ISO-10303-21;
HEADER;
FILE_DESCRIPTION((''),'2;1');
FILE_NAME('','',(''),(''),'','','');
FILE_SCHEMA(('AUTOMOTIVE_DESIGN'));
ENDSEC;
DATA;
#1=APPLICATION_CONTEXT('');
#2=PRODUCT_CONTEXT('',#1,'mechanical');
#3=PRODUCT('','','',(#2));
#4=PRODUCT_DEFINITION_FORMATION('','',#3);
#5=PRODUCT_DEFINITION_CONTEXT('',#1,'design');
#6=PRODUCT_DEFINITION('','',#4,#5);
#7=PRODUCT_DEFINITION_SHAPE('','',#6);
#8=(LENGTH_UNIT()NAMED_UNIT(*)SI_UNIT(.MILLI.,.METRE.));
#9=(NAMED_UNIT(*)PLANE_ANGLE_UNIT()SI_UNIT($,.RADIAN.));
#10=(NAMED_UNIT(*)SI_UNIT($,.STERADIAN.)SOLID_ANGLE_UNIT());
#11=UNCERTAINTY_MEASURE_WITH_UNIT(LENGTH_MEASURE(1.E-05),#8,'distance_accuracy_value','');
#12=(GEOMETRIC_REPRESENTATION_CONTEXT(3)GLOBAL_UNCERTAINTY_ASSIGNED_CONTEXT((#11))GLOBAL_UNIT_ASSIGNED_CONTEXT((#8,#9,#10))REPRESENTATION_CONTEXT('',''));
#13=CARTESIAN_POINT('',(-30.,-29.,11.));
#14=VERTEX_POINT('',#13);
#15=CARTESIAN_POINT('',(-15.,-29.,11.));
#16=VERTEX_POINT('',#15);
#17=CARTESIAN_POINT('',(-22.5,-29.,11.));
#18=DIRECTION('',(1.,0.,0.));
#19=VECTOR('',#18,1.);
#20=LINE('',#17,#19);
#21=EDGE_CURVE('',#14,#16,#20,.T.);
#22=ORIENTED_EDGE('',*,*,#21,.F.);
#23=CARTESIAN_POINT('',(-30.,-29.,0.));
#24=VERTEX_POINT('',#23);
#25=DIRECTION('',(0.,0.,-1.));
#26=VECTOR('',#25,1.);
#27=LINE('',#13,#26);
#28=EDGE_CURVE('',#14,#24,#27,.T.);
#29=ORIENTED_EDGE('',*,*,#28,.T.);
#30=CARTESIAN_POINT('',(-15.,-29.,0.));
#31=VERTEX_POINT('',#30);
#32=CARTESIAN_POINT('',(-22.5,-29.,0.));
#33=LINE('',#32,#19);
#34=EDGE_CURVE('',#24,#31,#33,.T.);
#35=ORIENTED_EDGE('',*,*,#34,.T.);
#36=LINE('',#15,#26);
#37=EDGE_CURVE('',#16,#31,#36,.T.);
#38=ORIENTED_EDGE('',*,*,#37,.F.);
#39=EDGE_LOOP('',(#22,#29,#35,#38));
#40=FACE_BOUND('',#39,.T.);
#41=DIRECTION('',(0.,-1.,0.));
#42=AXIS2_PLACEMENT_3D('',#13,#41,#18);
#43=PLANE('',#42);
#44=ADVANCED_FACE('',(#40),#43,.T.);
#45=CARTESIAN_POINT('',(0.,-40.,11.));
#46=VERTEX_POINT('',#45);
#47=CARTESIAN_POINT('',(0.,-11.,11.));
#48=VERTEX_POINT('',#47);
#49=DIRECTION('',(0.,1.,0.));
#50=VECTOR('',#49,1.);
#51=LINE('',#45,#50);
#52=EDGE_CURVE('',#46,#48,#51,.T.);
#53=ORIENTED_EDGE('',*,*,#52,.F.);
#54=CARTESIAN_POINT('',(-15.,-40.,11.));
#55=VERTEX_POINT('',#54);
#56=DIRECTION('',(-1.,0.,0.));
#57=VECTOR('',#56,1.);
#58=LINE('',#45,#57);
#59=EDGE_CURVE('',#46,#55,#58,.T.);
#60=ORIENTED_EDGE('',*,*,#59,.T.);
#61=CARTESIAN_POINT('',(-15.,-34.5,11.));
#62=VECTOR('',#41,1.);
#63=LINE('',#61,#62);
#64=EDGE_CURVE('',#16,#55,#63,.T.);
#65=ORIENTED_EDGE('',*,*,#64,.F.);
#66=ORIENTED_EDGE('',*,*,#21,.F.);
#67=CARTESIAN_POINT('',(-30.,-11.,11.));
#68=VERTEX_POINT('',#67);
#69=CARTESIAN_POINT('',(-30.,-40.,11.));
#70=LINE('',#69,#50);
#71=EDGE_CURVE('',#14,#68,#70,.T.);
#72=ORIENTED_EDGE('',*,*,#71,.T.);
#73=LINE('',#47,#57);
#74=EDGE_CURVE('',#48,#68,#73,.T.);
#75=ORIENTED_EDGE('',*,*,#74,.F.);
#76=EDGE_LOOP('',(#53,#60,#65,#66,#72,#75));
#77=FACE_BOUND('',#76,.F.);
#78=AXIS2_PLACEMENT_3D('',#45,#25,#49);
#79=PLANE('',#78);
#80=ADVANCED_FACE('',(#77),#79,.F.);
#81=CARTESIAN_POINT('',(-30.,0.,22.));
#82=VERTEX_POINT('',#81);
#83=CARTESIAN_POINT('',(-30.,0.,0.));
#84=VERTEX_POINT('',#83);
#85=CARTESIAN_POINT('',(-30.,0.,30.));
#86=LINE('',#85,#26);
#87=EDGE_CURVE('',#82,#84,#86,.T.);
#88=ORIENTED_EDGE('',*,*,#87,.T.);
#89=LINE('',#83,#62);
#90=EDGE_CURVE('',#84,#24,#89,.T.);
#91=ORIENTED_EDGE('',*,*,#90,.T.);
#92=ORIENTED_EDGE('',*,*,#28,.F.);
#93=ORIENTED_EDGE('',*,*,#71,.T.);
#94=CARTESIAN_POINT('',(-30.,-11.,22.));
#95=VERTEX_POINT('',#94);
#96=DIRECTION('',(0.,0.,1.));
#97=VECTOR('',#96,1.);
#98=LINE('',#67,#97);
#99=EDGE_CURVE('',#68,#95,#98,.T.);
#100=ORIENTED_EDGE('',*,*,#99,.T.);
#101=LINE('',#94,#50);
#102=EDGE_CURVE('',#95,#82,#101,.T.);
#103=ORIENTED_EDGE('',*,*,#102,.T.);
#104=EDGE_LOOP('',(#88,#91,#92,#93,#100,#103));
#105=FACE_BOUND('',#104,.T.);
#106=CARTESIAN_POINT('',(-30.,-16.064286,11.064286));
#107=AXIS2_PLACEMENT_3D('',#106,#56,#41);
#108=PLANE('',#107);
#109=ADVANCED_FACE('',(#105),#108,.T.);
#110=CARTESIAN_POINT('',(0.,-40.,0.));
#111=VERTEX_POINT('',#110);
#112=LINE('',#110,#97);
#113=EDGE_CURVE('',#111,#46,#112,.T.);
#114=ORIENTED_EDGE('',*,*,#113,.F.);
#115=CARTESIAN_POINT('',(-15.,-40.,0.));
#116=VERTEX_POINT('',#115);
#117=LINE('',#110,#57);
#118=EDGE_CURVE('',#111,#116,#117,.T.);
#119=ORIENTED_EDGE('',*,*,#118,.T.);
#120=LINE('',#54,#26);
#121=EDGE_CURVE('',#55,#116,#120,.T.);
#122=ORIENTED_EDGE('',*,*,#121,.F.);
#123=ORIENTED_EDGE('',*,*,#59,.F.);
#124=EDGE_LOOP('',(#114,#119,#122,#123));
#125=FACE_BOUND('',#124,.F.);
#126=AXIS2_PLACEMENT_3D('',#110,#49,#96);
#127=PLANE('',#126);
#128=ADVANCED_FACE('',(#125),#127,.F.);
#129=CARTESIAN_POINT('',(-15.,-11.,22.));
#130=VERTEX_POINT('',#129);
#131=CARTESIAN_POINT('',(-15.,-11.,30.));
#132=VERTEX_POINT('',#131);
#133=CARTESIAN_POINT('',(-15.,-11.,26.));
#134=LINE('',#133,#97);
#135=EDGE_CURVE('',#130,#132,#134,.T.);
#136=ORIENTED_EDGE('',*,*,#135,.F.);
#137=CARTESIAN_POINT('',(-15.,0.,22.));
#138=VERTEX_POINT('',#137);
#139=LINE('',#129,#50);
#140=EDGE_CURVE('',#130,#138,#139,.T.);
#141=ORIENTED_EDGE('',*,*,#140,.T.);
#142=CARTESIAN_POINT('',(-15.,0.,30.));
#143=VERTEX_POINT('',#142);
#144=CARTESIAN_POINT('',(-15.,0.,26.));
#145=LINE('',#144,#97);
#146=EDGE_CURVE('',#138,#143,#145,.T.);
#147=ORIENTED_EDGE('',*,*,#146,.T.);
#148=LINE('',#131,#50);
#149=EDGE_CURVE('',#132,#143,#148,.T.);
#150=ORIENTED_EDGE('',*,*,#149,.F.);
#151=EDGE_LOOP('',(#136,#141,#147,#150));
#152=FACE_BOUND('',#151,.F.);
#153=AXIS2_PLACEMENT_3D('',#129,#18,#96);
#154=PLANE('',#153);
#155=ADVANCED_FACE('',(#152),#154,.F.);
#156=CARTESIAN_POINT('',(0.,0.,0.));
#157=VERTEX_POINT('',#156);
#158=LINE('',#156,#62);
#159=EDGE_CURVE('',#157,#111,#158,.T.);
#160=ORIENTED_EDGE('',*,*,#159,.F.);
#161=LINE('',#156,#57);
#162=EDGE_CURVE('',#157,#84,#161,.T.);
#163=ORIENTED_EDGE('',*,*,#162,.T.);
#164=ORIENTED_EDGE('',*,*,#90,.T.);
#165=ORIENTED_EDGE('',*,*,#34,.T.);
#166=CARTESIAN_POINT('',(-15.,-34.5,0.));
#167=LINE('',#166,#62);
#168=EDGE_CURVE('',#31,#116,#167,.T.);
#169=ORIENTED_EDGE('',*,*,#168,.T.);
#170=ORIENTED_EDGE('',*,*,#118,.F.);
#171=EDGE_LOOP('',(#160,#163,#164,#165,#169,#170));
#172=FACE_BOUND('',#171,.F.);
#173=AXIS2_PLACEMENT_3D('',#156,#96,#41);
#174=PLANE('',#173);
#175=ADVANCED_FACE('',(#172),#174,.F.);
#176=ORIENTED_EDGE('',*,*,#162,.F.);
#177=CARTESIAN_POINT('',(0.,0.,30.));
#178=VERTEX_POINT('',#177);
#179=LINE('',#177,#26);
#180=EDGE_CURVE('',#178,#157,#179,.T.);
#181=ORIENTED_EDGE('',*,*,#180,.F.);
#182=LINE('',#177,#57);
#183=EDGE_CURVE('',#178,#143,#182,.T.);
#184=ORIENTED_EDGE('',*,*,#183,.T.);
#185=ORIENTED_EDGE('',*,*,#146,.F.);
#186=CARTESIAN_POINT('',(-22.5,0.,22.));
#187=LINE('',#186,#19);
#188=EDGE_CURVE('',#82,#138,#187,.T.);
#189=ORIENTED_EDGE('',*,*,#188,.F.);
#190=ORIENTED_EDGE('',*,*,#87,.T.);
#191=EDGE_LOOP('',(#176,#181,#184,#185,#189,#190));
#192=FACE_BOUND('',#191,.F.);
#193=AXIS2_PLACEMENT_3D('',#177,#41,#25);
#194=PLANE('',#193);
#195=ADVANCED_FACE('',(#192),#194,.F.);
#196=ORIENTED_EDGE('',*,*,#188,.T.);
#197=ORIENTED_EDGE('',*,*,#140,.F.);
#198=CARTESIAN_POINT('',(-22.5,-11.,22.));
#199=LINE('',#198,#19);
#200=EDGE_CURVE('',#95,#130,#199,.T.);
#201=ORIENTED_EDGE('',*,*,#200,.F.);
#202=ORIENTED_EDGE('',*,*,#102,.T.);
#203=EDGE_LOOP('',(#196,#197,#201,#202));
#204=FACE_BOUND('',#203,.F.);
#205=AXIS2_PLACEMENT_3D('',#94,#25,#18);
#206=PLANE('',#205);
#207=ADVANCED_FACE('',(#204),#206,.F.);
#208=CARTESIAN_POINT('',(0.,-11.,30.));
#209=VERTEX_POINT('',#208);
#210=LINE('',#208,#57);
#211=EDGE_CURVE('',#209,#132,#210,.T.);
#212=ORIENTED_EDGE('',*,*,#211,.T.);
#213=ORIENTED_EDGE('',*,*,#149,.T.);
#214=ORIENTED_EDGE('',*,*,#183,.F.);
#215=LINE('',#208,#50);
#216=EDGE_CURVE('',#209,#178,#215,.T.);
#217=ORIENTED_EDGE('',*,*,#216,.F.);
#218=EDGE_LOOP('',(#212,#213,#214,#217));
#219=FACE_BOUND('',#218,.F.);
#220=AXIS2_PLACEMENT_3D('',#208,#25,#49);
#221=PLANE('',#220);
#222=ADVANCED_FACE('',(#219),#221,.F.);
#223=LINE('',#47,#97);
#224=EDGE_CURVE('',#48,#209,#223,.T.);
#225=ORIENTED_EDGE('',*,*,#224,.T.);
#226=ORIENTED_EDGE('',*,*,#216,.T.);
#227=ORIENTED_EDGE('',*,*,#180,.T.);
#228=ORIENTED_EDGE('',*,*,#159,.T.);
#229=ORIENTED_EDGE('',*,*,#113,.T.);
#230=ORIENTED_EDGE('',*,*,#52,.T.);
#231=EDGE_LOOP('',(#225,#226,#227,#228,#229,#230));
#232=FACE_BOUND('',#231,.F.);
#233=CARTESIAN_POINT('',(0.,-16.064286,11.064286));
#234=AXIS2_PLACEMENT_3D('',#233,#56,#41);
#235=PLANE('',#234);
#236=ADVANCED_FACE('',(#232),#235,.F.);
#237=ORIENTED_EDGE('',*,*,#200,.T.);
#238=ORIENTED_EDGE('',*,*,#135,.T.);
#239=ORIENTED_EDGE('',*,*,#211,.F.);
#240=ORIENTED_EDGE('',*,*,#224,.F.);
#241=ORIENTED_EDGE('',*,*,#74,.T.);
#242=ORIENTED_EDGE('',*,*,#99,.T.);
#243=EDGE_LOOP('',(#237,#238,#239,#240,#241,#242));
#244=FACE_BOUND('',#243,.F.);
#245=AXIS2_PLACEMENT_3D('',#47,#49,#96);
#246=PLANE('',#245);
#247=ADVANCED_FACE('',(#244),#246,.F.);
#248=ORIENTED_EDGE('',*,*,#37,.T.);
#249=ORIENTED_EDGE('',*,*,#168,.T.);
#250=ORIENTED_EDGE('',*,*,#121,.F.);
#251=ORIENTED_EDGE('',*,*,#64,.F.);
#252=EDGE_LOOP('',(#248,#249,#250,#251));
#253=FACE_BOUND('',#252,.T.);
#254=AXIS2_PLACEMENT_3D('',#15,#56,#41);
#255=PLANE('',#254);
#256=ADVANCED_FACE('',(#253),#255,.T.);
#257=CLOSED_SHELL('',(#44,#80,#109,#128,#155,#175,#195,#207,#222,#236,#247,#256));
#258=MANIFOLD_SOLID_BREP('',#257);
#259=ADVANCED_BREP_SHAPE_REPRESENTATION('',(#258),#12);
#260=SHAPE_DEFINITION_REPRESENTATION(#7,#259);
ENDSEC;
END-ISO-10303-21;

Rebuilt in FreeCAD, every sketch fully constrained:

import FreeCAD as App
import Part
import Sketcher

V = App.Vector


def add_polygon(sketch, points):
    """Adds a closed chain of lines whose ends are joined by coincident constraints."""
    first, n = sketch.GeometryCount, len(points)
    for a, b in zip(points, points[1:] + points[:1]):
        sketch.addGeometry(Part.LineSegment(App.Vector(*a, 0), App.Vector(*b, 0)), False)
    for i in range(n):
        sketch.addConstraint(Sketcher.Constraint("Coincident", first + i, 2, first + (i + 1) % n, 1))

doc = App.newDocument("Part")
body = doc.addObject("PartDesign::Body", "Body")

# Sketch on XZ plane
sketch1 = body.newObject("Sketcher::SketchObject", "Sketch")
sketch1.AttachmentSupport = (doc.getObject("XZ_Plane"), [""])
sketch1.MapMode = "FlatFace"
add_polygon(sketch1, [(0, 30), (0, 0), (40, 0), (40, 11), (11, 11), (11, 30)])  # lines 0-5
sketch1.addConstraint(Sketcher.Constraint("Vertical", 0))
sketch1.addConstraint(Sketcher.Constraint("Horizontal", 1))
sketch1.addConstraint(Sketcher.Constraint("Vertical", 2))
sketch1.addConstraint(Sketcher.Constraint("Horizontal", 3))
sketch1.addConstraint(Sketcher.Constraint("Vertical", 4))
sketch1.addConstraint(Sketcher.Constraint("Horizontal", 5))
sketch1.addConstraint(Sketcher.Constraint("Coincident", 0, 2, -1, 1))
sketch1.addConstraint(Sketcher.Constraint("Equal", 5, 2))
sketch1.addConstraint(Sketcher.Constraint("DistanceX", 1, 1, 1, 2, 40.0))
sketch1.addConstraint(Sketcher.Constraint("DistanceX", 3, 2, 3, 1, 29.0))
sketch1.addConstraint(Sketcher.Constraint("DistanceY", 0, 2, 0, 1, 30.0))
pad1 = body.newObject("PartDesign::Pad", "Pad")
pad1.Profile = sketch1
pad1.Length = 30

# Sketch on XY plane
sketch2 = body.newObject("Sketcher::SketchObject", "Sketch001")
sketch2.AttachmentSupport = (doc.getObject("XY_Plane"), [""])
sketch2.MapMode = "FlatFace"
sketch2.AttachmentOffset = App.Placement(V(0, 0, 11), App.Rotation())
add_polygon(sketch2, [(29, -15), (29, -30), (40, -30), (40, -15)])  # lines 0-3
sketch2.addConstraint(Sketcher.Constraint("Vertical", 0))
sketch2.addConstraint(Sketcher.Constraint("Horizontal", 1))
sketch2.addConstraint(Sketcher.Constraint("Vertical", 2))
sketch2.addConstraint(Sketcher.Constraint("Horizontal", 3))
sketch2.addConstraint(Sketcher.Constraint("DistanceX", 1, 1, 1, 2, 11.0))
sketch2.addConstraint(Sketcher.Constraint("DistanceY", 0, 2, 0, 1, 15.0))
sketch2.addConstraint(Sketcher.Constraint("DistanceX", -1, 1, 0, 2, 29.0))
sketch2.addConstraint(Sketcher.Constraint("DistanceY", 0, 2, -1, 1, 30.0))
pocket1 = body.newObject("PartDesign::Pocket", "Pocket")
pocket1.Profile = sketch2
pocket1.Type = "ThroughAll"

# Sketch on YZ plane
sketch3 = body.newObject("Sketcher::SketchObject", "Sketch002")
sketch3.AttachmentSupport = (doc.getObject("YZ_Plane"), [""])
sketch3.MapMode = "FlatFace"
sketch3.AttachmentOffset = App.Placement(V(0, 0, 11), App.Rotation())
add_polygon(sketch3, [(-30, 30), (-30, 22), (-15, 22), (-15, 30)])  # lines 0-3
sketch3.addConstraint(Sketcher.Constraint("Vertical", 0))
sketch3.addConstraint(Sketcher.Constraint("Horizontal", 1))
sketch3.addConstraint(Sketcher.Constraint("Vertical", 2))
sketch3.addConstraint(Sketcher.Constraint("Horizontal", 3))
sketch3.addConstraint(Sketcher.Constraint("DistanceX", 1, 1, 1, 2, 15.0))
sketch3.addConstraint(Sketcher.Constraint("DistanceY", 0, 2, 0, 1, 8.0))
sketch3.addConstraint(Sketcher.Constraint("DistanceX", 0, 2, -1, 1, 30.0))
sketch3.addConstraint(Sketcher.Constraint("DistanceY", -1, 1, 0, 2, 22.0))
pocket2 = body.newObject("PartDesign::Pocket", "Pocket001")
pocket2.Profile = sketch3
pocket2.Type = "ThroughAll"
body2 = doc.addObject("PartDesign::Body", "Body001")
doc.recompute()

body.Placement = App.Placement(V(0, 0, 0), App.Rotation(V(0, 0, 1), 270))
boolean = body2.newObject("PartDesign::Boolean", "Boolean")
boolean.Type = "Fuse"
boolean.addObjects([body])

doc.recompute()
